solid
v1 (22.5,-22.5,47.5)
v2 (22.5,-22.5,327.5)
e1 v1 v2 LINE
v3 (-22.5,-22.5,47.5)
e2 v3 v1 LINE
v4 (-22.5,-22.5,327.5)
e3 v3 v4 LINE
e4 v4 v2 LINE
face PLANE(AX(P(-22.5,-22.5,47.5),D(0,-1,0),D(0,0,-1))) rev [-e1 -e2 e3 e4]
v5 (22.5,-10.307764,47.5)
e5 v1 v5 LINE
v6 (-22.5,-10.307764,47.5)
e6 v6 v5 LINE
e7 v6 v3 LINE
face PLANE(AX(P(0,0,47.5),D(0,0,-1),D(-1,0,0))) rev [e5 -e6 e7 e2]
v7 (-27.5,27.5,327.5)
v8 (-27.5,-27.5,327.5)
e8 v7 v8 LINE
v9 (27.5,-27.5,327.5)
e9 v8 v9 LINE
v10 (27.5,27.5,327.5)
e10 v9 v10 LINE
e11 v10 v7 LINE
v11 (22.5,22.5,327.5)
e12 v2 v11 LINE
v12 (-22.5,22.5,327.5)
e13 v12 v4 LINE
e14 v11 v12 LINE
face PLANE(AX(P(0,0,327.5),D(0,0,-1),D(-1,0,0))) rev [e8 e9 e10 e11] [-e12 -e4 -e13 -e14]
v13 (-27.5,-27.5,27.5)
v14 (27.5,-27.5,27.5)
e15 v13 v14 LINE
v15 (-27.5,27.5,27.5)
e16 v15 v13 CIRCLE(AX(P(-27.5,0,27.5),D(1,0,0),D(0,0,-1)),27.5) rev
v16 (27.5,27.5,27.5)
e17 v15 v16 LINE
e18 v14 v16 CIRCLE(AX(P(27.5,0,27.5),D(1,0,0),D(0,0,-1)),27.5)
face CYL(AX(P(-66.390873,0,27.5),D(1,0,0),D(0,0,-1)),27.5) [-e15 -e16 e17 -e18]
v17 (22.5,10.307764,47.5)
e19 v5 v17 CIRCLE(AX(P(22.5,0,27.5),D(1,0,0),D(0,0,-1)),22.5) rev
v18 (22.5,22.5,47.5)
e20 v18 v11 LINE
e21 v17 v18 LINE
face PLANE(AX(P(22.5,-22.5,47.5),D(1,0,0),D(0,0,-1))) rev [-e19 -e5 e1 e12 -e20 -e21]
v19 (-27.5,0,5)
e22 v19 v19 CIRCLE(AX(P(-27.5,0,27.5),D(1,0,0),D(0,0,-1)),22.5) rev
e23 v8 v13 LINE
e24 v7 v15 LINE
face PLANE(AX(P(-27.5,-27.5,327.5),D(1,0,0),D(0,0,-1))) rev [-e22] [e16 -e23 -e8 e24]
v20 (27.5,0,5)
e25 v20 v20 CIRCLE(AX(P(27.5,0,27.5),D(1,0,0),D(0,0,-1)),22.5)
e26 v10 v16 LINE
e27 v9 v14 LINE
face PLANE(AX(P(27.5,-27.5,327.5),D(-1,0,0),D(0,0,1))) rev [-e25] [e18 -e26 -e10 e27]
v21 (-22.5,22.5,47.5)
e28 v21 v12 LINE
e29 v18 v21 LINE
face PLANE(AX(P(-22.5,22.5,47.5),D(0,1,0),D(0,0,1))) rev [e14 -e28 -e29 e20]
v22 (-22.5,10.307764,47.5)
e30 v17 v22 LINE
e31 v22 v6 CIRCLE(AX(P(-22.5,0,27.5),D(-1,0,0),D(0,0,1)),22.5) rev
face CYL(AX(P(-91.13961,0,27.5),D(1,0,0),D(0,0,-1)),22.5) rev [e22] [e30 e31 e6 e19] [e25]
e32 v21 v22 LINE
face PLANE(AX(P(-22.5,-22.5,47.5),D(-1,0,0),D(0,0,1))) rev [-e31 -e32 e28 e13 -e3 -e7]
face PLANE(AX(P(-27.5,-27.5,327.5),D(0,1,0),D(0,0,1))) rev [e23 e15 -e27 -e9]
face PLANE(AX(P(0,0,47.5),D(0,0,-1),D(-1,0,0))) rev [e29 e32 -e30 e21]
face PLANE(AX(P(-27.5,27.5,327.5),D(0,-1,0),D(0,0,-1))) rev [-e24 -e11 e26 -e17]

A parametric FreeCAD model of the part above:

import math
import FreeCAD as App
import Part
import Sketcher
Q = App.Units.Quantity


def add_polygon(sketch, points):
    """Adds a closed chain of lines whose ends are joined by coincident constraints."""
    first, n = sketch.GeometryCount, len(points)
    for a, b in zip(points, points[1:] + points[:1]):
        sketch.addGeometry(Part.LineSegment(App.Vector(*a, 0), App.Vector(*b, 0)), False)
    for i in range(n):
        sketch.addConstraint(Sketcher.Constraint("Coincident", first + i, 2, first + (i + 1) % n, 1))

doc = App.newDocument("Part")
body = doc.addObject("PartDesign::Body", "Body")

# Sketch on XY plane
sketch1 = doc.addObject("Sketcher::SketchObject", "Sketch")
body.addObject(sketch1)
sketch1.AttachmentSupport = (doc.XY_Plane, [""])
sketch1.MapMode = "FlatFace"
add_polygon(sketch1, [(-28, 28), (-28, -28), (28, -28), (28, 28)])  # lines 0-3
sketch1.addConstraint(Sketcher.Constraint("Vertical", 0))
sketch1.addConstraint(Sketcher.Constraint("Horizontal", 1))
sketch1.addConstraint(Sketcher.Constraint("Vertical", 2))
sketch1.addConstraint(Sketcher.Constraint("Horizontal", 3))
sketch1.addConstraint(Sketcher.Constraint("Symmetric", 0, 2, 2, 2, -1, 1))
sketch1.addConstraint(Sketcher.Constraint("Equal", 3, 0))
sketch1.addConstraint(Sketcher.Constraint("DistanceX", 1, 1, 1, 2, Q("55 mm")))
pad1 = doc.addObject("PartDesign::Pad", "Pad")
body.addObject(pad1)
pad1.Profile = sketch1
pad1.Length = 327.5

# Sketch on YZ plane
sketch2 = doc.addObject("Sketcher::SketchObject", "Sketch001")
body.addObject(sketch2)
sketch2.AttachmentSupport = (doc.YZ_Plane, [""])
sketch2.MapMode = "FlatFace"
sketch2.AttachmentOffset = App.Placement(App.Vector(0, 0, 27.5), App.Rotation())
sketch2.addGeometry(Part.Circle(App.Vector(0, 28, 0), App.Vector(0, 0, 1), 22), False)
sketch2.addConstraint(Sketcher.Constraint("PointOnObject", 0, 3, -2))
sketch2.addConstraint(Sketcher.Constraint("Diameter", 0, Q("45 mm")))
sketch2.addConstraint(Sketcher.Constraint("DistanceY", -1, 1, 0, 3, Q("27.5 mm")))
pocket1 = doc.addObject("PartDesign::Pocket", "Pocket")
body.addObject(pocket1)
pocket1.Profile = sketch2
pocket1.Length = 55

# Sketch on YZ plane
sketch3 = doc.addObject("Sketcher::SketchObject", "Sketch002")
body.addObject(sketch3)
sketch3.AttachmentSupport = (doc.YZ_Plane, [""])
sketch3.MapMode = "FlatFace"
sketch3.AttachmentOffset = App.Placement(App.Vector(0, 0, 27.5), App.Rotation())
sketch3.addGeometry(Part.LineSegment(App.Vector(28, 0, 0), App.Vector(28, 28, 0)), False)
sketch3.addGeometry(Part.ArcOfCircle(Part.Circle(App.Vector(0, 27, 0), App.Vector(0, 0, 1), 27), math.radians(-90), math.radians(0)), False)
sketch3.addGeometry(Part.LineSegment(App.Vector(0, 0, 0), App.Vector(28, 0, 0)), False)
sketch3.addGeometry(Part.LineSegment(App.Vector(-28, 0, 0), App.Vector(0, 0, 0)), False)
sketch3.addGeometry(Part.ArcOfCircle(Part.Circle(App.Vector(0, 27, 0), App.Vector(0, 0, 1), 27), math.radians(180), math.radians(270)), False)
sketch3.addGeometry(Part.LineSegment(App.Vector(-28, 28, 0), App.Vector(-28, 0, 0)), False)
sketch3.addConstraint(Sketcher.Constraint("Tangent", 0, 2, 1, 2))
sketch3.addConstraint(Sketcher.Constraint("Tangent", 1, 1, 2, 1))
sketch3.addConstraint(Sketcher.Constraint("Coincident", 2, 2, 0, 1))
sketch3.addConstraint(Sketcher.Constraint("Tangent", 3, 2, 4, 2))
sketch3.addConstraint(Sketcher.Constraint("Tangent", 4, 1, 5, 1))
sketch3.addConstraint(Sketcher.Constraint("Coincident", 5, 2, 3, 1))
sketch3.addConstraint(Sketcher.Constraint("Vertical", 0))
sketch3.addConstraint(Sketcher.Constraint("Horizontal", 2))
sketch3.addConstraint(Sketcher.Constraint("Horizontal", 3))
sketch3.addConstraint(Sketcher.Constraint("Vertical", 5))
sketch3.addConstraint(Sketcher.Constraint("Coincident", 1, 1, -1, 1))
sketch3.addConstraint(Sketcher.Constraint("Coincident", 3, 2, -1, 1))
sketch3.addConstraint(Sketcher.Constraint("Equal", 1, 4))
sketch3.addConstraint(Sketcher.Constraint("Radius", 1, Q("27.5 mm")))
pocket2 = doc.addObject("PartDesign::Pocket", "Pocket001")
body.addObject(pocket2)
pocket2.Profile = sketch3
pocket2.Length = 55

# Sketch on XY plane
sketch4 = doc.addObject("Sketcher::SketchObject", "Sketch003")
body.addObject(sketch4)
sketch4.AttachmentSupport = (doc.XY_Plane, [""])
sketch4.MapMode = "FlatFace"
sketch4.AttachmentOffset = App.Placement(App.Vector(0, 0, 327.5), App.Rotation())
add_polygon(sketch4, [(-22, 22), (-22, -22), (22, -22), (22, 22)])  # lines 0-3
sketch4.addConstraint(Sketcher.Constraint("Vertical", 0))
sketch4.addConstraint(Sketcher.Constraint("Horizontal", 1))
sketch4.addConstraint(Sketcher.Constraint("Vertical", 2))
sketch4.addConstraint(Sketcher.Constraint("Horizontal", 3))
sketch4.addConstraint(Sketcher.Constraint("Symmetric", 0, 2, 2, 2, -1, 1))
sketch4.addConstraint(Sketcher.Constraint("Equal", 3, 0))
sketch4.addConstraint(Sketcher.Constraint("DistanceX", 1, 1, 1, 2, Q("45 mm")))
pocket3 = doc.addObject("PartDesign::Pocket", "Pocket002")
body.addObject(pocket3)
pocket3.Profile = sketch4
pocket3.Length = 280

doc.recompute()
